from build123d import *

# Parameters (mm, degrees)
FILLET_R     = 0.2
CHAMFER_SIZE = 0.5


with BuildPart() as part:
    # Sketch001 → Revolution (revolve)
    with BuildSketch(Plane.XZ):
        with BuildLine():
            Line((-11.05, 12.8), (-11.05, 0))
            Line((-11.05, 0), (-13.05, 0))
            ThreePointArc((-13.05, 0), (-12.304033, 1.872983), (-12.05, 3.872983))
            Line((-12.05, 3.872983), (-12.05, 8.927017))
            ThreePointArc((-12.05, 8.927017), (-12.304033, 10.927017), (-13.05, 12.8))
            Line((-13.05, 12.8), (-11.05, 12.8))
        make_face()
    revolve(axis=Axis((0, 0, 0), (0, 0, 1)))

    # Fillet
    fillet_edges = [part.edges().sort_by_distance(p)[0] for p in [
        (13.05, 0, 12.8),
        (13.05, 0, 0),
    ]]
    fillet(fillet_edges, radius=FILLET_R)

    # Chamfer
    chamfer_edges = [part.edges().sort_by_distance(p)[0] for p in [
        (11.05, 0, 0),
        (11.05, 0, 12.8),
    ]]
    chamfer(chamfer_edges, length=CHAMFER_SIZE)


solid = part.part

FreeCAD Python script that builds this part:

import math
import FreeCAD as App
import Part
import Sketcher


def edges_at(feature, points):
    """Names of the edges that pass closest to the given points."""
    edges = feature.Shape.Edges
    near = lambda p: min(range(len(edges)), key=lambda i: edges[i].distToShape(Part.Vertex(*p))[0])
    return sorted({f"Edge{near(p) + 1}" for p in points})

doc = App.newDocument("Part")
body = doc.addObject("PartDesign::Body", "Body")

# Sketch on XZ plane
sketch1 = doc.addObject("Sketcher::SketchObject", "Sketch")
body.addObject(sketch1)
sketch1.AttachmentSupport = (doc.XZ_Plane, [""])
sketch1.MapMode = "FlatFace"
sketch1.addGeometry([
    Part.LineSegment(App.Vector(-11.1, 0, 0), App.Vector(-11.1, 12.8, 0)),  # 0
    Part.LineSegment(App.Vector(-11.1, 12.8, 0), App.Vector(-13.1, 12.8, 0)),  # 1
    Part.ArcOfCircle(Part.Circle(App.Vector(-20, 8.9, 0), App.Vector(0, 0, 1), 8), math.radians(0), math.radians(29)),  # 2
    Part.LineSegment(App.Vector(-12.1, 8.9, 0), App.Vector(-12.1, 3.9, 0)),  # 3
    Part.ArcOfCircle(Part.Circle(App.Vector(-20, 3.9, 0), App.Vector(0, 0, 1), 8), math.radians(-29), math.radians(0)),  # 4
    Part.LineSegment(App.Vector(-13.1, 0, 0), App.Vector(-11.1, 0, 0)),  # 5
], False)
sketch1.addConstraint([
    Sketcher.Constraint("Coincident", 0, 2, 1, 1),
    Sketcher.Constraint("Coincident", 1, 2, 2, 2),
    Sketcher.Constraint("Tangent", 2, 1, 3, 1),
    Sketcher.Constraint("Tangent", 3, 2, 4, 2),
    Sketcher.Constraint("Coincident", 4, 1, 5, 1),
    Sketcher.Constraint("Coincident", 5, 2, 0, 1),
    Sketcher.Constraint("Vertical", 0),
    Sketcher.Constraint("Horizontal", 1),
    Sketcher.Constraint("Vertical", 3),
    Sketcher.Constraint("Horizontal", 5),
    Sketcher.Constraint("Equal", 2, 4),
    Sketcher.Constraint("PointOnObject", 4, 1, -1),
    Sketcher.Constraint("Vertical", 1, 2, 4, 1),
    Sketcher.Constraint("DistanceX", 1, 2, 1, 1, 2.0),
    Sketcher.Constraint("DistanceY", 0, 1, 0, 2, 12.8),
    Sketcher.Constraint("DistanceX", 1, 2, 2, 1, 1.0),
    Sketcher.Constraint("DistanceX", 0, 2, -1, 1, 11.05),
    Sketcher.Constraint("Radius", 2, 7.999988),
])
revolution = doc.addObject("PartDesign::Revolution", "Revolution")
body.addObject(revolution)
revolution.Profile = sketch1
revolution.ReferenceAxis = (sketch1, ["V_Axis"])
revolution.Angle = 360
doc.recompute()

fillet = doc.addObject("PartDesign::Fillet", "Fillet")
body.addObject(fillet)
fillet.Base = (revolution, edges_at(revolution, [(13.05, 0, 12.8), (13.05, 0, 0)]))
fillet.Radius = 0.2
doc.recompute()

chamfer = doc.addObject("PartDesign::Chamfer", "Chamfer")
body.addObject(chamfer)
chamfer.Base = (fillet, edges_at(fillet, [(11.05, 0, 0), (11.05, 0, 12.8)]))
chamfer.Size = 0.5

doc.recompute()
